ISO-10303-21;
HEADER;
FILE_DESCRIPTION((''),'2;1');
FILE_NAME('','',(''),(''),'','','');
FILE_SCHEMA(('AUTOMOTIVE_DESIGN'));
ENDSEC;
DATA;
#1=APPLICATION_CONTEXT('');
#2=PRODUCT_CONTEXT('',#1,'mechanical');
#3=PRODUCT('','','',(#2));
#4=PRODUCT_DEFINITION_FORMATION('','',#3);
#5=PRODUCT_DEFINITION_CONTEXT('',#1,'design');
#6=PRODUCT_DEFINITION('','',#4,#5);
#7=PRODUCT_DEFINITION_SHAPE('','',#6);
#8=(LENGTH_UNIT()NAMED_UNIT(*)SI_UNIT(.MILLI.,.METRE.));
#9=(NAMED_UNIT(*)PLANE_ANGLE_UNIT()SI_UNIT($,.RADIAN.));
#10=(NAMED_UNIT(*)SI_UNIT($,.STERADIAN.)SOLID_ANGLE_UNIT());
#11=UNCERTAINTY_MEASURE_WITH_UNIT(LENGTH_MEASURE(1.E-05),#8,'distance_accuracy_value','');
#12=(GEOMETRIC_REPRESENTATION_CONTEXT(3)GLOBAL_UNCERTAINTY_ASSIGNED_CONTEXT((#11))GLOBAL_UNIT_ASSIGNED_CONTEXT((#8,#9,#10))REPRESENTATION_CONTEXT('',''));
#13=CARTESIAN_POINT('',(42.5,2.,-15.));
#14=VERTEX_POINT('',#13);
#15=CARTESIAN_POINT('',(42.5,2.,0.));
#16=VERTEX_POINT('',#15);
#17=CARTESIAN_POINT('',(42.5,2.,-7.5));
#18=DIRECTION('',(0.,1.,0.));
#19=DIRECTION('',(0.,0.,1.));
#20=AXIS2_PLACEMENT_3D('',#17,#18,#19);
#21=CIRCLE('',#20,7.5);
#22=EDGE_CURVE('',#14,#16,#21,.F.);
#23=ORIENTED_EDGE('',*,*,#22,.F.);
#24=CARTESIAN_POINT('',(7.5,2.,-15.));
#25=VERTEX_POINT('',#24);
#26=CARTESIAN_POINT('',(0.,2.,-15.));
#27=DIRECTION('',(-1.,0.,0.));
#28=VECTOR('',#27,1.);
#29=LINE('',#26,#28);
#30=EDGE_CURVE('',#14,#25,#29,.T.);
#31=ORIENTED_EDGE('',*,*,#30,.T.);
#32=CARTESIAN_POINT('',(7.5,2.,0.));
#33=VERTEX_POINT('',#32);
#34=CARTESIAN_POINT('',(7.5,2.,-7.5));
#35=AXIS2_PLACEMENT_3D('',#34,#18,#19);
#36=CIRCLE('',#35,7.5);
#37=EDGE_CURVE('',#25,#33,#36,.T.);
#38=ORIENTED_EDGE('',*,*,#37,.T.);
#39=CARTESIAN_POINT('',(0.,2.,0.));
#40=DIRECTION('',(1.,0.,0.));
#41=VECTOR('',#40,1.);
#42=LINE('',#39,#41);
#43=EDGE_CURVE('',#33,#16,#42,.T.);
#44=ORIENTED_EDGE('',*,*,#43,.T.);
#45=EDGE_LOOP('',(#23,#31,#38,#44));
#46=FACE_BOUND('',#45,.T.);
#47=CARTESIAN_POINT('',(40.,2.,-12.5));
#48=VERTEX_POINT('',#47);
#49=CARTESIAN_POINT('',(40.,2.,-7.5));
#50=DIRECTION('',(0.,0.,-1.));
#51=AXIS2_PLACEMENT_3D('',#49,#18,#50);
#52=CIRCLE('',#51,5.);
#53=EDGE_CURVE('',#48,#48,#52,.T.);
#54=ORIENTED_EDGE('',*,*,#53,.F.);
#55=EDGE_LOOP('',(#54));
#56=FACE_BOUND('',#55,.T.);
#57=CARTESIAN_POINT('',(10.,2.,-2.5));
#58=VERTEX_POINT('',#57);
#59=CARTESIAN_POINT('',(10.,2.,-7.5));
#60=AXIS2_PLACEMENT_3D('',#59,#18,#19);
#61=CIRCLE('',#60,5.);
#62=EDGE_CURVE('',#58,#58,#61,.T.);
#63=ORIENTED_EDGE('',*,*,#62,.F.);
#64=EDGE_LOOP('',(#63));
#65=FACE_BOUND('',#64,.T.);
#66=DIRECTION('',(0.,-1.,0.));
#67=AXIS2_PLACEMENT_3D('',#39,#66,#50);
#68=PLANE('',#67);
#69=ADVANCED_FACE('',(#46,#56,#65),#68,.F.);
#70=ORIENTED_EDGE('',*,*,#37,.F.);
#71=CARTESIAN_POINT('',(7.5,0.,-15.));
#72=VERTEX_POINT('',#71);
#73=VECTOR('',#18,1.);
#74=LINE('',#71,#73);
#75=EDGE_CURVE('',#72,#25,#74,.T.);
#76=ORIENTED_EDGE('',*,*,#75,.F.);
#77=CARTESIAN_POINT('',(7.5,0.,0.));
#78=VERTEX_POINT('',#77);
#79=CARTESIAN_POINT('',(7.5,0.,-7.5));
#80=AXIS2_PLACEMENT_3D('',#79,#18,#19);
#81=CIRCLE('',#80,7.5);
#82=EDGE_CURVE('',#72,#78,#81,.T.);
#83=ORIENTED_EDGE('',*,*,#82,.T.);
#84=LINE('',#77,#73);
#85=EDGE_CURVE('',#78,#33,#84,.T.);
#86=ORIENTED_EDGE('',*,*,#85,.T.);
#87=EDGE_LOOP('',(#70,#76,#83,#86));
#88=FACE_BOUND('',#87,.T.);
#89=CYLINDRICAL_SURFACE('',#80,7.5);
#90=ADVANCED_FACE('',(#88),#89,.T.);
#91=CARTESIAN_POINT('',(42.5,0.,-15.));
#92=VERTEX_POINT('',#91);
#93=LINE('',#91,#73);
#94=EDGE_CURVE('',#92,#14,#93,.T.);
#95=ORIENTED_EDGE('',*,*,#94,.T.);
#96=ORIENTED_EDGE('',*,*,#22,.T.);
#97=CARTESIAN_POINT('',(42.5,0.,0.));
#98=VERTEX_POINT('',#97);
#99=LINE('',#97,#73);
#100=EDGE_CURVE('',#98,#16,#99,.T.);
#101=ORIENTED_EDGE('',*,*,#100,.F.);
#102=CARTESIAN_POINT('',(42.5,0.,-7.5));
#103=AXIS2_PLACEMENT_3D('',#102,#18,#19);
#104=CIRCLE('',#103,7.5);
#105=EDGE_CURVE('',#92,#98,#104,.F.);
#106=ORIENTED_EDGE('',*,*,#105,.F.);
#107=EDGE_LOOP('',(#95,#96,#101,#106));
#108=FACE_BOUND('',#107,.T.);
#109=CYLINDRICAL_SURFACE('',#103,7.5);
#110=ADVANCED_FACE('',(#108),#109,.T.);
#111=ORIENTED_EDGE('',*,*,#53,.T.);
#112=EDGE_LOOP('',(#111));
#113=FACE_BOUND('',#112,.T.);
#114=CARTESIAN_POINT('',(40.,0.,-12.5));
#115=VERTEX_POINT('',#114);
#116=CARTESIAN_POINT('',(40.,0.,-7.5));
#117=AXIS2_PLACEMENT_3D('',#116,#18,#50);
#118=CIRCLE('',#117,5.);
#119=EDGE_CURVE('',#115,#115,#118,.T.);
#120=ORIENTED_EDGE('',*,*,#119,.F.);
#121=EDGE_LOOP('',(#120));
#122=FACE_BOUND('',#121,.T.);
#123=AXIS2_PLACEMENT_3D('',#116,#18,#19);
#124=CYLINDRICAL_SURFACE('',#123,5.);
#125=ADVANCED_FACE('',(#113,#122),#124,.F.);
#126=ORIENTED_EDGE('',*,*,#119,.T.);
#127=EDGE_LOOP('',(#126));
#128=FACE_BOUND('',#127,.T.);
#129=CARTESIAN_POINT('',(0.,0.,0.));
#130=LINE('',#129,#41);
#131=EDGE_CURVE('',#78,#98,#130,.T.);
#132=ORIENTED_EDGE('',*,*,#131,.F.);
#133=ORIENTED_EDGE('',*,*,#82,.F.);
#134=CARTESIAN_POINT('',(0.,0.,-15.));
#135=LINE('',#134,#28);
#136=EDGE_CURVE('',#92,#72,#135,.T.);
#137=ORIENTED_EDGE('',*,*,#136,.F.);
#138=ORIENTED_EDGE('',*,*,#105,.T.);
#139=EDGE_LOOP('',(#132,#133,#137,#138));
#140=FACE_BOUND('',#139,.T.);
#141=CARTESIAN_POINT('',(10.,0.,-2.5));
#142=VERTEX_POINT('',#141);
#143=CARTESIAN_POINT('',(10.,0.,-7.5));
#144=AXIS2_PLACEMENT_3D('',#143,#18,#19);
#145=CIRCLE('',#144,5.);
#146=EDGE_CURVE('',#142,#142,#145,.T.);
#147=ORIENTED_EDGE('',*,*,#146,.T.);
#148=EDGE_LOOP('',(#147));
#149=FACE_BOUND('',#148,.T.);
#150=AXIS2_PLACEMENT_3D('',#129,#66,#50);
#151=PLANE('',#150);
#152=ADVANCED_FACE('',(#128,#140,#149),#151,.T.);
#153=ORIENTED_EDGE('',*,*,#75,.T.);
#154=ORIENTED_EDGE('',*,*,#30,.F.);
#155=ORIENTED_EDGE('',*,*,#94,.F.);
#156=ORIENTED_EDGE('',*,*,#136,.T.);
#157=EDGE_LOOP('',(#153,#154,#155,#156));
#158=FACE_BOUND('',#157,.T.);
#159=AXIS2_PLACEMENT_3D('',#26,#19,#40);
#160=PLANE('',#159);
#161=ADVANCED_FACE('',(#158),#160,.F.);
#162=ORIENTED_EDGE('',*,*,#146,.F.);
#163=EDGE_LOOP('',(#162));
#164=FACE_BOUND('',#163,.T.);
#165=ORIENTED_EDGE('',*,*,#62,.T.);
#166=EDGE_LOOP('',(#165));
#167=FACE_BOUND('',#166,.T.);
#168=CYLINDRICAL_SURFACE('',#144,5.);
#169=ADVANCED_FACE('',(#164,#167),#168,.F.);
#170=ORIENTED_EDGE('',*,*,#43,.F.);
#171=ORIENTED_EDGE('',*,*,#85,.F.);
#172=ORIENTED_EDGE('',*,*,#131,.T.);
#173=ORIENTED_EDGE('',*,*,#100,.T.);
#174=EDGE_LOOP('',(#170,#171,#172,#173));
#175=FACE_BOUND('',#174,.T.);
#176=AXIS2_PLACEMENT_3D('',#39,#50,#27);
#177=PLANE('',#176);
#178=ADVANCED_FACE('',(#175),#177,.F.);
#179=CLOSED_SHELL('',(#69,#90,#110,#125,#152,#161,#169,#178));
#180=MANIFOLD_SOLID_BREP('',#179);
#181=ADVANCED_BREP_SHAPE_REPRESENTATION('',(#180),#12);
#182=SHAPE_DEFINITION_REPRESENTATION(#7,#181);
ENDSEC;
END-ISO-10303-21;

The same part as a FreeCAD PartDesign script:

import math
import FreeCAD as App
import Part
import Sketcher


def add_polygon(sketch, points):
    """Adds a closed chain of lines whose ends are joined by coincident constraints."""
    first, n = sketch.GeometryCount, len(points)
    for a, b in zip(points, points[1:] + points[:1]):
        sketch.addGeometry(Part.LineSegment(App.Vector(*a, 0), App.Vector(*b, 0)), False)
    for i in range(n):
        sketch.addConstraint(Sketcher.Constraint("Coincident", first + i, 2, first + (i + 1) % n, 1))

doc = App.newDocument("Part")
body = doc.addObject("PartDesign::Body", "Body")

sketch1 = body.newObject("Sketcher::SketchObject", "Sketch")
sketch1.AttachmentSupport = (doc.getObject("XZ_Plane"), [""])
sketch1.MapMode = "FlatFace"
add_polygon(sketch1, [(0, -15), (0, 0), (50, 0), (50, -15)])
sketch1.addConstraint([
    Sketcher.Constraint("Vertical", 0),
    Sketcher.Constraint("Horizontal", 1),
    Sketcher.Constraint("Vertical", 2),
    Sketcher.Constraint("Horizontal", 3),
    Sketcher.Constraint("Coincident", 0, 2, -1, 1),
    Sketcher.Constraint("DistanceX", 1, 1, 1, 2, 50.0),
    Sketcher.Constraint("DistanceY", 0, 1, 0, 2, 15.0),
])
pad1 = body.newObject("PartDesign::Pad", "Pad")
pad1.Profile = sketch1
pad1.Length = 2
pad1.Reversed = True

sketch2 = body.newObject("Sketcher::SketchObject", "Sketch001")
sketch2.AttachmentSupport = (doc.getObject("XZ_Plane"), [""])
sketch2.MapMode = "FlatFace"
sketch2.AttachmentOffset = App.Placement(App.Vector(0, 0, -2), App.Rotation())
sketch2.addGeometry([
    Part.Circle(App.Vector(10, -7.5, 0), App.Vector(0, 0, 1), 5),
    Part.Circle(App.Vector(40, -7.5, 0), App.Vector(0, 0, 1), 5),
], False)
sketch2.addConstraint([
    Sketcher.Constraint("Equal", 0, 1),
    Sketcher.Constraint("Horizontal", 0, 3, 1, 3),
    Sketcher.Constraint("Diameter", 0, 10.0),
    Sketcher.Constraint("DistanceX", -1, 1, 0, 3, 10.0),
    Sketcher.Constraint("DistanceX", -1, 1, 1, 3, 40.0),
    Sketcher.Constraint("DistanceY", 0, 3, -1, 1, 7.5),
])
pocket1 = body.newObject("PartDesign::Pocket", "Pocket")
pocket1.Profile = sketch2
pocket1.Length = 2
pocket1.Reversed = True

sketch3 = body.newObject("Sketcher::SketchObject", "Sketch002")
sketch3.AttachmentSupport = (doc.getObject("XZ_Plane"), [""])
sketch3.MapMode = "FlatFace"
sketch3.AttachmentOffset = App.Placement(App.Vector(0, 0, -2), App.Rotation())
sketch3.addGeometry([
    Part.ArcOfCircle(Part.Circle(App.Vector(7.5, -7.5, 0), App.Vector(0, 0, 1), 7.5), math.radians(180), math.radians(270)),
    Part.LineSegment(App.Vector(7.5, -15, 0), App.Vector(0, -15, 0)),
    Part.LineSegment(App.Vector(0, -15, 0), App.Vector(0, -7.5, 0)),
    Part.ArcOfCircle(Part.Circle(App.Vector(7.5, -7.5, 0), App.Vector(0, 0, 1), 7.5), math.radians(90), math.radians(180)),
    Part.LineSegment(App.Vector(0, -7.5, 0), App.Vector(0, 0, 0)),
    Part.LineSegment(App.Vector(0, 0, 0), App.Vector(7.5, 0, 0)),
    Part.LineSegment(App.Vector(50, -15, 0), App.Vector(42.5, -15, 0)),
    Part.ArcOfCircle(Part.Circle(App.Vector(42.5, -7.5, 0), App.Vector(0, 0, 1), 7.5), math.radians(-90), math.radians(0)),
    Part.LineSegment(App.Vector(50, -7.5, 0), App.Vector(50, -15, 0)),
    Part.LineSegment(App.Vector(50, 0, 0), App.Vector(50, -7.5, 0)),
    Part.ArcOfCircle(Part.Circle(App.Vector(42.5, -7.5, 0), App.Vector(0, 0, 1), 7.5), math.radians(0), math.radians(90)),
    Part.LineSegment(App.Vector(42.5, 0, 0), App.Vector(50, 0, 0)),
], False)
sketch3.addConstraint([
    Sketcher.Constraint("Tangent", 0, 2, 1, 1),
    Sketcher.Constraint("Coincident", 1, 2, 2, 1),
    Sketcher.Constraint("Tangent", 2, 2, 0, 1),
    Sketcher.Constraint("Tangent", 3, 2, 4, 1),
    Sketcher.Constraint("Coincident", 4, 2, 5, 1),
    Sketcher.Constraint("Tangent", 5, 2, 3, 1),
    Sketcher.Constraint("Tangent", 6, 2, 7, 1),
    Sketcher.Constraint("Tangent", 7, 2, 8, 1),
    Sketcher.Constraint("Coincident", 8, 2, 6, 1),
    Sketcher.Constraint("Tangent", 9, 2, 10, 1),
    Sketcher.Constraint("Tangent", 10, 2, 11, 1),
    Sketcher.Constraint("Coincident", 11, 2, 9, 1),
    Sketcher.Constraint("Horizontal", 1),
    Sketcher.Constraint("Vertical", 2),
    Sketcher.Constraint("Vertical", 4),
    Sketcher.Constraint("Horizontal", 5),
    Sketcher.Constraint("Horizontal", 6),
    Sketcher.Constraint("Vertical", 8),
    Sketcher.Constraint("Vertical", 9),
    Sketcher.Constraint("Horizontal", 11),
    Sketcher.Constraint("Coincident", 4, 2, -1, 1),
    Sketcher.Constraint("Coincident", 3, 3, 0, 3),
    Sketcher.Constraint("Coincident", 10, 3, 7, 3),
    Sketcher.Constraint("Equal", 0, 3),
    Sketcher.Constraint("Equal", 3, 7),
    Sketcher.Constraint("Equal", 7, 10),
    Sketcher.Constraint("PointOnObject", 10, 2, -1),
    Sketcher.Constraint("Radius", 0, 7.5),
    Sketcher.Constraint("DistanceX", -1, 1, 7, 2, 50.0),
])
pocket2 = body.newObject("PartDesign::Pocket", "Pocket001")
pocket2.Profile = sketch3
pocket2.Length = 2
pocket2.Reversed = True

doc.recompute()
